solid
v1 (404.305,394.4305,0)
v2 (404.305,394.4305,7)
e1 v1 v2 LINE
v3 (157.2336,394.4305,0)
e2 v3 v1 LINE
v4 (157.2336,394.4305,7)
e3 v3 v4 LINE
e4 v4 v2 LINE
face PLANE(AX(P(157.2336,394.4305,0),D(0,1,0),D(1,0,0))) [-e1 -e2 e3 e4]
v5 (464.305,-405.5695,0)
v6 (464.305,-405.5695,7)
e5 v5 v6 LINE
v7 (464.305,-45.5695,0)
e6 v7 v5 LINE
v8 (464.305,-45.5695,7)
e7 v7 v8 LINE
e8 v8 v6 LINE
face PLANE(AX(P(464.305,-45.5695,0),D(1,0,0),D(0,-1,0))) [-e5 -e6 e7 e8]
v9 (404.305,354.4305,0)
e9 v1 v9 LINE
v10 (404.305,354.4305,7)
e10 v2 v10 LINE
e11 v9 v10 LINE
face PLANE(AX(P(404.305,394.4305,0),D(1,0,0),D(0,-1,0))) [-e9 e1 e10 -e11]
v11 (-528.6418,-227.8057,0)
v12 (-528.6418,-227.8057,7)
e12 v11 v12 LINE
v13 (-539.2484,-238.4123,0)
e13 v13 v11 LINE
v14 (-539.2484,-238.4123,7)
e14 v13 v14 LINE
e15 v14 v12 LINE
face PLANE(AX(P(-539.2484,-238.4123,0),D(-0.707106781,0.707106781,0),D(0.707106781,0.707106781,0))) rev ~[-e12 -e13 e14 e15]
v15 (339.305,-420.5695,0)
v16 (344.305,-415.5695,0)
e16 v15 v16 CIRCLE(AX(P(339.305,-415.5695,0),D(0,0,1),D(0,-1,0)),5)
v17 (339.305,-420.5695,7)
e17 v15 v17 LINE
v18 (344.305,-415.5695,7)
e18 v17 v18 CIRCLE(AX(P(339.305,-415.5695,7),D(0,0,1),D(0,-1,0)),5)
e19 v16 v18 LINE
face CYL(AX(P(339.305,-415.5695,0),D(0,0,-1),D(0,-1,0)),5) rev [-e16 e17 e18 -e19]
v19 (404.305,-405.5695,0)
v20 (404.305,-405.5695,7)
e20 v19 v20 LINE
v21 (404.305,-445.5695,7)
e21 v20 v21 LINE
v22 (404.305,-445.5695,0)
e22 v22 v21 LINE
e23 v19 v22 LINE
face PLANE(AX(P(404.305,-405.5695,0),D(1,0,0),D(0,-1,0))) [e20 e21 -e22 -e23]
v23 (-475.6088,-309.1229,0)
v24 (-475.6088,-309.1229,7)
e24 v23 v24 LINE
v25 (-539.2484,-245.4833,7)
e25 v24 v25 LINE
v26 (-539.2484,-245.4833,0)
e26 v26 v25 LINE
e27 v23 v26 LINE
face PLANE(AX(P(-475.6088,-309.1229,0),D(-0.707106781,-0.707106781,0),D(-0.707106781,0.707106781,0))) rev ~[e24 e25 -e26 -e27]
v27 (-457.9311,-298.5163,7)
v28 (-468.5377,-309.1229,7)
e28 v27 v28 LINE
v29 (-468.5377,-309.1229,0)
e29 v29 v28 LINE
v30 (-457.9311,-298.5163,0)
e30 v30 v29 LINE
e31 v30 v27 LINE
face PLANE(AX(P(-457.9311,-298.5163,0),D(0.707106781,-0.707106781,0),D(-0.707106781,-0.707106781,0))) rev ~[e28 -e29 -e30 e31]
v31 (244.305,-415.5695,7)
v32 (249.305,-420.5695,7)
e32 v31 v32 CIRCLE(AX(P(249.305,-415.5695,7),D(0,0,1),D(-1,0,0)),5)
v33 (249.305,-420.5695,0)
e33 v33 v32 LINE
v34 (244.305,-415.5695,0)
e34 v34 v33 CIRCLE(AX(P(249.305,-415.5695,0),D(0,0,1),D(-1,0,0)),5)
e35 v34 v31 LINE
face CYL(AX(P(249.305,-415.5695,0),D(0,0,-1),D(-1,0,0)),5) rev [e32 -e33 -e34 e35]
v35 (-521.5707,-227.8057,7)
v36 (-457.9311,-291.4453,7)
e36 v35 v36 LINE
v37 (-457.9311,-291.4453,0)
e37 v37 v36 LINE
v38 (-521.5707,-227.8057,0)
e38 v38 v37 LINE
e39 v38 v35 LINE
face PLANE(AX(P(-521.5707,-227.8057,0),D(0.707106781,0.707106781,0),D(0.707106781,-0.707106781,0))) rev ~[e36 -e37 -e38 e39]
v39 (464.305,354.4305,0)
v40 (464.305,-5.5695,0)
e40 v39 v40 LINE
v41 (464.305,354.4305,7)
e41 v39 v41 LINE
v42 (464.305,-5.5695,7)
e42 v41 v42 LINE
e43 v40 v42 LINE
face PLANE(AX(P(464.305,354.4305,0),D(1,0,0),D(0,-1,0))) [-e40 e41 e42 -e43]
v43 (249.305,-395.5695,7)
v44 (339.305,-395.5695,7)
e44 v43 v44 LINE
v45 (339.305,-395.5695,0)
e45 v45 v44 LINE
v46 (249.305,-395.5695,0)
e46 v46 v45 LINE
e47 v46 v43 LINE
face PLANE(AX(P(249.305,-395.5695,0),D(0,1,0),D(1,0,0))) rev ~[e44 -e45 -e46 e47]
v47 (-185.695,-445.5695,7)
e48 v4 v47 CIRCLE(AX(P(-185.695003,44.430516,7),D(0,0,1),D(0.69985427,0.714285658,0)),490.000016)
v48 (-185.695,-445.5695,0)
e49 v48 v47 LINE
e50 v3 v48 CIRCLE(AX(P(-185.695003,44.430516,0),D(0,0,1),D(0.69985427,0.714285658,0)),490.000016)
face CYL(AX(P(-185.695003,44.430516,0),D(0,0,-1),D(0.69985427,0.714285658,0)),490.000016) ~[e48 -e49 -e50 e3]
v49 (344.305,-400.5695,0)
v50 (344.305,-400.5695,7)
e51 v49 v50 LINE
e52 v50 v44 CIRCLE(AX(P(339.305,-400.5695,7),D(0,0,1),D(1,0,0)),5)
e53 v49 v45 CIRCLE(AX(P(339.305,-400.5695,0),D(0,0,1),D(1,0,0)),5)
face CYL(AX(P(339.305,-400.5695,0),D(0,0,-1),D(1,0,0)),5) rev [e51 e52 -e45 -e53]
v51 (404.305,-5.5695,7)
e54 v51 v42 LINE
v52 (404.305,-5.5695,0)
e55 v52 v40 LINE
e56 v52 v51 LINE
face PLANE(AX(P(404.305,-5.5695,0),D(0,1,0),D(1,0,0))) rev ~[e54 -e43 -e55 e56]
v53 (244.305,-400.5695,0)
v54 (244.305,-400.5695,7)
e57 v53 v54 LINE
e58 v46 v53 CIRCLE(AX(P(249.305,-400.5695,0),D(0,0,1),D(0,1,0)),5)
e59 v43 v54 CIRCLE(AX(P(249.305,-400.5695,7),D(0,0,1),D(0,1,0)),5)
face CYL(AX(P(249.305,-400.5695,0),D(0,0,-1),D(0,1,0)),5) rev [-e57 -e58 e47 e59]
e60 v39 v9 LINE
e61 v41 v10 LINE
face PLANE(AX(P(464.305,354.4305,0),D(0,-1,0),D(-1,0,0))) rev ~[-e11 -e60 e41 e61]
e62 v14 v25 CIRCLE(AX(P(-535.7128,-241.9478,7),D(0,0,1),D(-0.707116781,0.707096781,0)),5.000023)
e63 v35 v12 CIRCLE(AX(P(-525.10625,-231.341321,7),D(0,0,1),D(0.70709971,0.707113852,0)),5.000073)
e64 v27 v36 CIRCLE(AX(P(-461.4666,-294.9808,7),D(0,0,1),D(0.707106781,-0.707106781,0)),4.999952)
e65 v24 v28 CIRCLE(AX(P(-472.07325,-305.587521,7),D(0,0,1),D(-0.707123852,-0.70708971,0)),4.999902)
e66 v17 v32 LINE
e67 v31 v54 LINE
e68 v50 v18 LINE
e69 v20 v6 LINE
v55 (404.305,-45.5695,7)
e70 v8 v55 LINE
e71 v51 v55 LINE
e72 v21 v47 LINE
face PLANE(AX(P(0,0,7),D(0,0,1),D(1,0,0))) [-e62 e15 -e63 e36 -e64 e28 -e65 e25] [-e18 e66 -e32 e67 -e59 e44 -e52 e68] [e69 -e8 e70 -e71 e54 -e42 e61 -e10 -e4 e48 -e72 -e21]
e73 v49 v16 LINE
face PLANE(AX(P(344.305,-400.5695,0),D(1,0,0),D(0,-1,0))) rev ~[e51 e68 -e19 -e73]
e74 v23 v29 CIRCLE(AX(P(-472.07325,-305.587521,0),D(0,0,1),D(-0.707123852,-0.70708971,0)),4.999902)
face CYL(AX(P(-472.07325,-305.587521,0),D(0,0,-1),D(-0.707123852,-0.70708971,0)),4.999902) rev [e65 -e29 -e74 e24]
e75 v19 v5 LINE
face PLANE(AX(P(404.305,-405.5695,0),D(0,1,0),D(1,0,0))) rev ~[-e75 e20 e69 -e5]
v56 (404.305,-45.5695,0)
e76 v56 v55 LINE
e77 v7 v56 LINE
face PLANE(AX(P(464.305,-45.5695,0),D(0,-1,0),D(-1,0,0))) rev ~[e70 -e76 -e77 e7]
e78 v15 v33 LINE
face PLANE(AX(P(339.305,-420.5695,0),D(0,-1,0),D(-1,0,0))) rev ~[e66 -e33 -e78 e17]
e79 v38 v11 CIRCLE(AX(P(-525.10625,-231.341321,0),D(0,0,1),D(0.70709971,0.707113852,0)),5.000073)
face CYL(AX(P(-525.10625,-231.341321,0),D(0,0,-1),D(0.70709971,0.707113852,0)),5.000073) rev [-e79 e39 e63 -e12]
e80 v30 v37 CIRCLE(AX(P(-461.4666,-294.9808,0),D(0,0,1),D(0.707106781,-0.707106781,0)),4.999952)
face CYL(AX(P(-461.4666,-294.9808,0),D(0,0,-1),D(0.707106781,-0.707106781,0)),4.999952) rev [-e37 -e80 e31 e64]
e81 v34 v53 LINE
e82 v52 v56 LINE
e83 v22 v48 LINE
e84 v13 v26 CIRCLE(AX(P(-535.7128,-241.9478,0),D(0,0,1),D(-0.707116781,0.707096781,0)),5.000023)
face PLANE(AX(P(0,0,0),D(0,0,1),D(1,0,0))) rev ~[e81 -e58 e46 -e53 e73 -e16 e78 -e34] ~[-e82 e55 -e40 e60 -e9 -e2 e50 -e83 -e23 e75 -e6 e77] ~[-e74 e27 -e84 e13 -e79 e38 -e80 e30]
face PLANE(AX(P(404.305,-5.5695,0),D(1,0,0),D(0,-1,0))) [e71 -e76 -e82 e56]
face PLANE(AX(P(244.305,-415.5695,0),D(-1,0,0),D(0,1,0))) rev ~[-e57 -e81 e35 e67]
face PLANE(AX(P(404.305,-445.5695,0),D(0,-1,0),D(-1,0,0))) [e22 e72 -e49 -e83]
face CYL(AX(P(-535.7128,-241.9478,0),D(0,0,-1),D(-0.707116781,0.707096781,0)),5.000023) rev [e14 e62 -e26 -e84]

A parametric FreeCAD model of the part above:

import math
import FreeCAD as App
import Part
import Sketcher

V = App.Vector

doc = App.newDocument("Part")
body = doc.addObject("PartDesign::Body", "Body")

# Sketch on XY plane
sketch1 = body.newObject("Sketcher::SketchObject", "Sketch")
sketch1.AttachmentSupport = (doc.getObject("XY_Plane"), [""])
sketch1.MapMode = "FlatFace"
sketch1.addGeometry(Part.LineSegment(V(404.3, 354.4, 0), V(404.3, 394.4, 0)), False)
sketch1.addGeometry(Part.LineSegment(V(404.3, 394.4, 0), V(157.2, 394.4, 0)), False)
sketch1.addGeometry(Part.ArcOfCircle(Part.Circle(V(-185.7, 44.4, 0), V(0, 0, 1), 490), math.radians(46), math.radians(270)), False)
sketch1.addGeometry(Part.LineSegment(V(-185.7, -445.6, 0), V(404.3, -445.6, 0)), False)
sketch1.addGeometry(Part.LineSegment(V(404.3, -445.6, 0), V(404.3, -405.6, 0)), False)
sketch1.addGeometry(Part.LineSegment(V(404.3, -405.6, 0), V(464.3, -405.6, 0)), False)
sketch1.addGeometry(Part.LineSegment(V(464.3, -405.6, 0), V(464.3, -45.6, 0)), False)
sketch1.addGeometry(Part.LineSegment(V(464.3, -45.6, 0), V(404.3, -45.6, 0)), False)
sketch1.addGeometry(Part.LineSegment(V(404.3, -45.6, 0), V(404.3, -5.6, 0)), False)
sketch1.addGeometry(Part.LineSegment(V(404.3, -5.6, 0), V(464.3, -5.6, 0)), False)
sketch1.addGeometry(Part.LineSegment(V(464.3, -5.6, 0), V(464.3, 354.4, 0)), False)
sketch1.addGeometry(Part.LineSegment(V(464.3, 354.4, 0), V(404.3, 354.4, 0)), False)
sketch1.addGeometry(Part.ArcOfCircle(Part.Circle(V(-525.1, -231.3, 0), V(0, 0, 1), 5), math.radians(45), math.radians(135)), False)
sketch1.addGeometry(Part.LineSegment(V(-521.6, -227.8, 0), V(-457.9, -291.4, 0)), False)
sketch1.addGeometry(Part.ArcOfCircle(Part.Circle(V(-461.5, -295, 0), V(0, 0, 1), 5), math.radians(-45), math.radians(45)), False)
sketch1.addGeometry(Part.LineSegment(V(-457.9, -298.5, 0), V(-468.5, -309.1, 0)), False)
sketch1.addGeometry(Part.ArcOfCircle(Part.Circle(V(-472.1, -305.6, 0), V(0, 0, 1), 5), math.radians(-135), math.radians(-45)), False)
sketch1.addGeometry(Part.LineSegment(V(-475.6, -309.1, 0), V(-539.2, -245.5, 0)), False)
sketch1.addGeometry(Part.ArcOfCircle(Part.Circle(V(-535.7, -241.9, 0), V(0, 0, 1), 5), math.radians(135), math.radians(225)), False)
sketch1.addGeometry(Part.LineSegment(V(-539.2, -238.4, 0), V(-528.6, -227.8, 0)), False)
sketch1.addGeometry(Part.ArcOfCircle(Part.Circle(V(249.3, -400.6, 0), V(0, 0, 1), 5), math.radians(90), math.radians(180)), False)
sketch1.addGeometry(Part.LineSegment(V(249.3, -395.6, 0), V(339.3, -395.6, 0)), False)
sketch1.addGeometry(Part.ArcOfCircle(Part.Circle(V(339.3, -400.6, 0), V(0, 0, 1), 5), math.radians(0), math.radians(90)), False)
sketch1.addGeometry(Part.LineSegment(V(344.3, -400.6, 0), V(344.3, -415.6, 0)), False)
sketch1.addGeometry(Part.ArcOfCircle(Part.Circle(V(339.3, -415.6, 0), V(0, 0, 1), 5), math.radians(-90), math.radians(0)), False)
sketch1.addGeometry(Part.LineSegment(V(339.3, -420.6, 0), V(249.3, -420.6, 0)), False)
sketch1.addGeometry(Part.ArcOfCircle(Part.Circle(V(249.3, -415.6, 0), V(0, 0, 1), 5), math.radians(180), math.radians(270)), False)
sketch1.addGeometry(Part.LineSegment(V(244.3, -415.6, 0), V(244.3, -400.6, 0)), False)
sketch1.addConstraint(Sketcher.Constraint("Coincident", 0, 2, 1, 1))
sketch1.addConstraint(Sketcher.Constraint("Coincident", 1, 2, 2, 1))
sketch1.addConstraint(Sketcher.Constraint("Tangent", 2, 2, 3, 1))
sketch1.addConstraint(Sketcher.Constraint("Coincident", 3, 2, 4, 1))
sketch1.addConstraint(Sketcher.Constraint("Coincident", 4, 2, 5, 1))
sketch1.addConstraint(Sketcher.Constraint("Coincident", 5, 2, 6, 1))
sketch1.addConstraint(Sketcher.Constraint("Coincident", 6, 2, 7, 1))
sketch1.addConstraint(Sketcher.Constraint("Coincident", 7, 2, 8, 1))
sketch1.addConstraint(Sketcher.Constraint("Coincident", 8, 2, 9, 1))
sketch1.addConstraint(Sketcher.Constraint("Coincident", 9, 2, 10, 1))
sketch1.addConstraint(Sketcher.Constraint("Coincident", 10, 2, 11, 1))
sketch1.addConstraint(Sketcher.Constraint("Coincident", 11, 2, 0, 1))
sketch1.addConstraint(Sketcher.Constraint("Tangent", 12, 1, 13, 1))
sketch1.addConstraint(Sketcher.Constraint("Tangent", 13, 2, 14, 2))
sketch1.addConstraint(Sketcher.Constraint("Tangent", 14, 1, 15, 1))
sketch1.addConstraint(Sketcher.Constraint("Tangent", 15, 2, 16, 2))
sketch1.addConstraint(Sketcher.Constraint("Tangent", 16, 1, 17, 1))
sketch1.addConstraint(Sketcher.Constraint("Tangent", 17, 2, 18, 2))
sketch1.addConstraint(Sketcher.Constraint("Tangent", 18, 1, 19, 1))
sketch1.addConstraint(Sketcher.Constraint("Tangent", 19, 2, 12, 2))
sketch1.addConstraint(Sketcher.Constraint("Tangent", 20, 1, 21, 1))
sketch1.addConstraint(Sketcher.Constraint("Tangent", 21, 2, 22, 2))
sketch1.addConstraint(Sketcher.Constraint("Tangent", 22, 1, 23, 1))
sketch1.addConstraint(Sketcher.Constraint("Tangent", 23, 2, 24, 2))
sketch1.addConstraint(Sketcher.Constraint("Tangent", 24, 1, 25, 1))
sketch1.addConstraint(Sketcher.Constraint("Tangent", 25, 2, 26, 2))
sketch1.addConstraint(Sketcher.Constraint("Tangent", 26, 1, 27, 1))
sketch1.addConstraint(Sketcher.Constraint("Tangent", 27, 2, 20, 2))
sketch1.addConstraint(Sketcher.Constraint("Vertical", 0))
sketch1.addConstraint(Sketcher.Constraint("Horizontal", 1))
sketch1.addConstraint(Sketcher.Constraint("Horizontal", 3))
sketch1.addConstraint(Sketcher.Constraint("Vertical", 4))
sketch1.addConstraint(Sketcher.Constraint("Horizontal", 5))
sketch1.addConstraint(Sketcher.Constraint("Vertical", 6))
sketch1.addConstraint(Sketcher.Constraint("Horizontal", 7))
sketch1.addConstraint(Sketcher.Constraint("Vertical", 8))
sketch1.addConstraint(Sketcher.Constraint("Horizontal", 9))
sketch1.addConstraint(Sketcher.Constraint("Vertical", 10))
sketch1.addConstraint(Sketcher.Constraint("Horizontal", 11))
sketch1.addConstraint(Sketcher.Constraint("Horizontal", 21))
sketch1.addConstraint(Sketcher.Constraint("Vertical", 23))
sketch1.addConstraint(Sketcher.Constraint("Horizontal", 25))
sketch1.addConstraint(Sketcher.Constraint("Vertical", 27))
sketch1.addConstraint(Sketcher.Constraint("Equal", 12, 14))
sketch1.addConstraint(Sketcher.Constraint("Equal", 14, 16))
sketch1.addConstraint(Sketcher.Constraint("Equal", 16, 18))
sketch1.addConstraint(Sketcher.Constraint("Equal", 18, 20))
sketch1.addConstraint(Sketcher.Constraint("Equal", 20, 22))
sketch1.addConstraint(Sketcher.Constraint("Equal", 22, 24))
sketch1.addConstraint(Sketcher.Constraint("Equal", 24, 26))
sketch1.addConstraint(Sketcher.Constraint("Perpendicular", 13, 15))
sketch1.addConstraint(Sketcher.Constraint("Perpendicular", 15, 17))
sketch1.addConstraint(Sketcher.Constraint("Perpendicular", 17, 19))
sketch1.addConstraint(Sketcher.Constraint("Horizontal", 15, 2, 16, 1))
sketch1.addConstraint(Sketcher.Constraint("Vertical", 0, 2, 3, 2))
sketch1.addConstraint(Sketcher.Constraint("Vertical", 4, 2, 7, 2))
sketch1.addConstraint(Sketcher.Constraint("Vertical", 6, 2, 9, 2))
sketch1.addConstraint(Sketcher.Constraint("Equal", 0, 4))
sketch1.addConstraint(Sketcher.Constraint("Equal", 4, 8))
sketch1.addConstraint(Sketcher.Constraint("Equal", 6, 10))
sketch1.addConstraint(Sketcher.Constraint("Radius", 2, 490.0))
sketch1.addConstraint(Sketcher.Constraint("Radius", 12, 5.0))
sketch1.addConstraint(Sketcher.Constraint("DistanceX", 3, 1, 3, 2, 590.0))
sketch1.addConstraint(Sketcher.Constraint("DistanceX", 5, 1, 5, 2, 60.0))
sketch1.addConstraint(Sketcher.Constraint("DistanceX", 21, 1, 21, 2, 90.0))
sketch1.addConstraint(Sketcher.Constraint("DistanceY", 0, 1, 0, 2, 40.0))
sketch1.addConstraint(Sketcher.Constraint("DistanceY", 6, 1, 6, 2, 360.0))
sketch1.addConstraint(Sketcher.Constraint("DistanceY", 23, 2, 23, 1, 15.0))
sketch1.addConstraint(Sketcher.Constraint("Distance", 13, 90.0))
sketch1.addConstraint(Sketcher.Constraint("Distance", 15, 15.0))
sketch1.addConstraint(Sketcher.Constraint("DistanceX", 2, 3, 20, 3, 435.0))
sketch1.addConstraint(Sketcher.Constraint("DistanceY", 20, 3, 2, 3, 445.0))
sketch1.addConstraint(Sketcher.Constraint("DistanceX", 2, 3, -1, 1, 185.695))
sketch1.addConstraint(Sketcher.Constraint("DistanceX", 13, 2, -1, 1, 457.931))
sketch1.addConstraint(Sketcher.Constraint("DistanceY", 15, 2, -1, 1, 309.123))
sketch1.addConstraint(Sketcher.Constraint("DistanceY", 16, 3, 2, 3, 350.018))
pad1 = body.newObject("PartDesign::Pad", "Pad")
pad1.Profile = sketch1
pad1.Length = 7

doc.recompute()
